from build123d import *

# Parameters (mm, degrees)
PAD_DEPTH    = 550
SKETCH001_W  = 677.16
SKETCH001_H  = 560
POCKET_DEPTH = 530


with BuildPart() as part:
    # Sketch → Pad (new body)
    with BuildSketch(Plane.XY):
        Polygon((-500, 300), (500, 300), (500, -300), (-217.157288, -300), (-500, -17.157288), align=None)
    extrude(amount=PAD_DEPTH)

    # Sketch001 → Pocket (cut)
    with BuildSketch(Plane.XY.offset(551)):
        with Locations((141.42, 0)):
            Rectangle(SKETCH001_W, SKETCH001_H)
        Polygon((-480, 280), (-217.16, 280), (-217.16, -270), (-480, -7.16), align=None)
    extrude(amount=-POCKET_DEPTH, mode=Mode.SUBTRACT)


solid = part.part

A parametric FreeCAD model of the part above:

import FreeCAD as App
import Part
import Sketcher
from FreeCAD import Vector
Q = App.Units.Quantity


def add_polygon(sketch, points):
    """Adds a closed chain of lines whose ends are joined by coincident constraints."""
    first, n = sketch.GeometryCount, len(points)
    for a, b in zip(points, points[1:] + points[:1]):
        sketch.addGeometry(Part.LineSegment(App.Vector(*a, 0), App.Vector(*b, 0)), False)
    for i in range(n):
        sketch.addConstraint(Sketcher.Constraint("Coincident", first + i, 2, first + (i + 1) % n, 1))

doc = App.newDocument("Part")
params = doc.addObject("Spreadsheet::Sheet", "Params")
for row, (alias, value) in enumerate([
    ("sketch1_width", "1000 mm"),
    ("sketch1_height", "600 mm"),
    ("sketch1_length", "399.999999 mm"),
    ("pad1_length", "550 mm"),
    ("sketch2_height", "560 mm"),
    ("sketch2_height2", "550 mm"),
    ("sketch2_width", "677.16 mm"),
    ("pocket1_length", "530 mm"),
], start=1):
    params.set(f"A{row}", alias)
    params.set(f"B{row}", "=" + value)
    params.setAlias(f"B{row}", alias)

body = doc.addObject("PartDesign::Body", "Body")

# Sketch on XY plane
sketch1 = body.newObject("Sketcher::SketchObject", "Sketch")
sketch1.AttachmentSupport = (doc.getObject("XY_Plane"), [""])
sketch1.MapMode = "FlatFace"
add_polygon(sketch1, [(500, 300), (-500, 300), (-500, -17), (-217, -300), (500, -300)])  # lines 0-4
sketch1.addConstraint([
    Sketcher.Constraint("Horizontal", 0),
    Sketcher.Constraint("Vertical", 1),
    Sketcher.Constraint("Horizontal", 3),
    Sketcher.Constraint("Vertical", 4),
    Sketcher.Constraint("Symmetric", 0, 2, 3, 2, -1, 1),
    Sketcher.Constraint("DistanceX", 0, 2, 0, 1, Q("1000 mm")),
    Sketcher.Constraint("DistanceY", 4, 1, 4, 2, Q("600 mm")),
    Sketcher.Constraint("Angle", 2, Q("-45 deg")),
    Sketcher.Constraint("Distance", 2, Q("399.999999 mm")),
])
sketch1.setExpression("Constraints[10]", "Params.sketch1_width")
sketch1.setExpression("Constraints[11]", "Params.sketch1_height")
sketch1.setExpression("Constraints[13]", "Params.sketch1_length")
pad1 = body.newObject("PartDesign::Pad", "Pad")
pad1.Profile = sketch1
pad1.setExpression("Length", "Params.pad1_length")

# Sketch on XY plane
sketch2 = body.newObject("Sketcher::SketchObject", "Sketch001")
sketch2.AttachmentSupport = (doc.getObject("XY_Plane"), [""])
sketch2.MapMode = "FlatFace"
sketch2.AttachmentOffset = App.Placement(Vector(0, 0, 551), App.Rotation())
add_polygon(sketch2, [(-197, 280), (-197, -280), (480, -280), (480, 280)])  # lines 0-3
add_polygon(sketch2, [(-217, 280), (-480, 280), (-480, -7), (-217, -270)])  # lines 4-7
sketch2.addConstraint([
    Sketcher.Constraint("Vertical", 0),
    Sketcher.Constraint("Horizontal", 1),
    Sketcher.Constraint("Vertical", 2),
    Sketcher.Constraint("Horizontal", 3),
    Sketcher.Constraint("Horizontal", 4),
    Sketcher.Constraint("Vertical", 5),
    Sketcher.Constraint("Vertical", 7),
    Sketcher.Constraint("Symmetric", 1, 2, 4, 2, -1, 1),
    Sketcher.Constraint("Horizontal", 3, 2, 4, 2),
    Sketcher.Constraint("DistanceY", 0, 2, 0, 1, Q("560 mm")),
    Sketcher.Constraint("DistanceY", 7, 1, 7, 2, Q("550 mm")),
    Sketcher.Constraint("Angle", 6, Q("-45 deg")),
    Sketcher.Constraint("DistanceX", -1, 1, 1, 2, Q("480 mm")),
    Sketcher.Constraint("DistanceX", 6, 2, 0, 2, Q("20 mm")),
    Sketcher.Constraint("DistanceX", 1, 1, 1, 2, Q("677.16 mm")),
])
sketch2.setExpression("Constraints[17]", "Params.sketch2_height")
sketch2.setExpression("Constraints[18]", "Params.sketch2_height2")
sketch2.setExpression("Constraints[22]", "Params.sketch2_width")
pocket1 = body.newObject("PartDesign::Pocket", "Pocket")
pocket1.Profile = sketch2
pocket1.setExpression("Length", "Params.pocket1_length")

doc.recompute()
